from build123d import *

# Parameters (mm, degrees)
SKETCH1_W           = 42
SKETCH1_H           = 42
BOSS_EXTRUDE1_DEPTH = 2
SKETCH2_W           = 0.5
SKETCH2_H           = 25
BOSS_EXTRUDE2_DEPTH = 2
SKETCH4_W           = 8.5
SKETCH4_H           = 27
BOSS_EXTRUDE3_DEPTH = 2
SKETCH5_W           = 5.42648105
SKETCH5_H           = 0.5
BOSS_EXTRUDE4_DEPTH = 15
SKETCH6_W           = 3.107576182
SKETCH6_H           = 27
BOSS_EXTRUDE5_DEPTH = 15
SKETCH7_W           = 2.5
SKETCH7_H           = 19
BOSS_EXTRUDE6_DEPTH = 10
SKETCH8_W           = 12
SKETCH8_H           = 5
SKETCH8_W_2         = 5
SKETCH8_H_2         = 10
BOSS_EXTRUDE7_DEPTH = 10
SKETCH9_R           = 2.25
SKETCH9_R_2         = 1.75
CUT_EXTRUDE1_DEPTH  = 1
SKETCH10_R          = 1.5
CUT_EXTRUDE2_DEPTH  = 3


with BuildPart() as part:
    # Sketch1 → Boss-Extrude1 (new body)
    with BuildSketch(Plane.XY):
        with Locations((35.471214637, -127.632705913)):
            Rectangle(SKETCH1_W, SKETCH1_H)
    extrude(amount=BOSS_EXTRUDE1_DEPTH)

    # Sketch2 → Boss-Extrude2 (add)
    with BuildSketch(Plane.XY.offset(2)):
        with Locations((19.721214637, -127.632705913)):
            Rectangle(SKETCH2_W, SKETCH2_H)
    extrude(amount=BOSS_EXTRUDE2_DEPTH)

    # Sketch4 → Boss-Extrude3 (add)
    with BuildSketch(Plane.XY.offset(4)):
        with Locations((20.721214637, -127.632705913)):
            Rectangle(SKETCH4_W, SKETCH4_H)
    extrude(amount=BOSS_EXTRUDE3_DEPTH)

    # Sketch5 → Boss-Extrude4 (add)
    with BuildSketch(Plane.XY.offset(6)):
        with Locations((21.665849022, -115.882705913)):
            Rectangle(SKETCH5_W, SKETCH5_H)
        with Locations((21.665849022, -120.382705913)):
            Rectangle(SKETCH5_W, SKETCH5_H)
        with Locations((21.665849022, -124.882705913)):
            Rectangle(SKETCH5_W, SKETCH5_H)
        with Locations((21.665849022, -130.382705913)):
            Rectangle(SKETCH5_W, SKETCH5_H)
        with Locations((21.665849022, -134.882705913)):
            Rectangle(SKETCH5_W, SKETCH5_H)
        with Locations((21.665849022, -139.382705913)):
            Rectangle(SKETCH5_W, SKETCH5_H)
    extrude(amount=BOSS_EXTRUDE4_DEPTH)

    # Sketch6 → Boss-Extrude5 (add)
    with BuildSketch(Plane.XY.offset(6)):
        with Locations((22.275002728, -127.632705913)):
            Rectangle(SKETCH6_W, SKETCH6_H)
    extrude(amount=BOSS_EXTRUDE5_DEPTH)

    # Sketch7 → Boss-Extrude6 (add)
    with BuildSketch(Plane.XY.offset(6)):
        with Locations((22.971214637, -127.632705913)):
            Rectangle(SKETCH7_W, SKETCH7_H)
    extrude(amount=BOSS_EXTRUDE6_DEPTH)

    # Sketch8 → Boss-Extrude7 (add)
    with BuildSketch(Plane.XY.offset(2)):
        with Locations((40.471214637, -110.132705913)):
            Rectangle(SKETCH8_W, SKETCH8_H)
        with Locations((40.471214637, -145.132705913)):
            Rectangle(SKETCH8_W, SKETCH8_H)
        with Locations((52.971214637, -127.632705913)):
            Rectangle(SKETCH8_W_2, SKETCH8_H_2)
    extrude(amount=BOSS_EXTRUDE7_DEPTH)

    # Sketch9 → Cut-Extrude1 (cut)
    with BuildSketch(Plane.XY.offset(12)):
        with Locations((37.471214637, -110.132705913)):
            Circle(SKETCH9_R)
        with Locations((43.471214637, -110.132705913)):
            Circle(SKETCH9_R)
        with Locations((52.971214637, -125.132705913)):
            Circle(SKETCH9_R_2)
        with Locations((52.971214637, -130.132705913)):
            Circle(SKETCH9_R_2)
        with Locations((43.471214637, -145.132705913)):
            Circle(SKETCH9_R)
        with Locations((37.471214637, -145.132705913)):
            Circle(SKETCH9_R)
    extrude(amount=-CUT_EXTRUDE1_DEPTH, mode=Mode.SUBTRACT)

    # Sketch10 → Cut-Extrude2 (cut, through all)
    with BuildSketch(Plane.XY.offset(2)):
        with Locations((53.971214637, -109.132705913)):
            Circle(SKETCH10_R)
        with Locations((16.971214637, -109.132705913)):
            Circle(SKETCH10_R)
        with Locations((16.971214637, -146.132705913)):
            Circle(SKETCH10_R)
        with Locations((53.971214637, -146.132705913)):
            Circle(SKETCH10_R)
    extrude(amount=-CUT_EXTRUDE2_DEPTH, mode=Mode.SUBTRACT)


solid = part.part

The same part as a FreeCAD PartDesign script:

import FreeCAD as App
import Part
import Sketcher

V = App.Vector

doc = App.newDocument("Part")
body = doc.addObject("PartDesign::Body", "Body")

# Sketch on XY plane
sketch1 = doc.addObject("Sketcher::SketchObject", "Sketch")
body.addObject(sketch1)
sketch1.AttachmentSupport = (doc.XY_Plane, [""])
sketch1.MapMode = "FlatFace"
sketch1.addGeometry(Part.LineSegment(V(14, -107, 0), V(14, -149, 0)), False)
sketch1.addGeometry(Part.LineSegment(V(14, -149, 0), V(56, -149, 0)), False)
sketch1.addGeometry(Part.LineSegment(V(56, -149, 0), V(56, -107, 0)), False)
sketch1.addGeometry(Part.LineSegment(V(56, -107, 0), V(14, -107, 0)), False)
sketch1.addConstraint(Sketcher.Constraint("Coincident", 0, 2, 1, 1))
sketch1.addConstraint(Sketcher.Constraint("Coincident", 1, 2, 2, 1))
sketch1.addConstraint(Sketcher.Constraint("Coincident", 2, 2, 3, 1))
sketch1.addConstraint(Sketcher.Constraint("Coincident", 3, 2, 0, 1))
sketch1.addConstraint(Sketcher.Constraint("Vertical", 0))
sketch1.addConstraint(Sketcher.Constraint("Horizontal", 1))
sketch1.addConstraint(Sketcher.Constraint("Vertical", 2))
sketch1.addConstraint(Sketcher.Constraint("Horizontal", 3))
sketch1.addConstraint(Sketcher.Constraint("Equal", 3, 0))
sketch1.addConstraint(Sketcher.Constraint("DistanceX", 1, 1, 1, 2, 42.0))
sketch1.addConstraint(Sketcher.Constraint("DistanceX", -1, 1, 0, 2, 14.471215))
sketch1.addConstraint(Sketcher.Constraint("DistanceY", 0, 2, -1, 1, 148.632706))
pad1 = doc.addObject("PartDesign::Pad", "Pad")
body.addObject(pad1)
pad1.Profile = sketch1
pad1.Length = 2

# Sketch on XY plane
sketch2 = doc.addObject("Sketcher::SketchObject", "Sketch001")
body.addObject(sketch2)
sketch2.AttachmentSupport = (doc.XY_Plane, [""])
sketch2.MapMode = "FlatFace"
sketch2.AttachmentOffset = App.Placement(V(0, 0, 2), App.Rotation())
sketch2.addGeometry(Part.LineSegment(V(19.5, -115.1, 0), V(19.5, -140.1, 0)), False)
sketch2.addGeometry(Part.LineSegment(V(19.5, -140.1, 0), V(20, -140.1, 0)), False)
sketch2.addGeometry(Part.LineSegment(V(20, -140.1, 0), V(20, -115.1, 0)), False)
sketch2.addGeometry(Part.LineSegment(V(20, -115.1, 0), V(19.5, -115.1, 0)), False)
sketch2.addConstraint(Sketcher.Constraint("Coincident", 0, 2, 1, 1))
sketch2.addConstraint(Sketcher.Constraint("Coincident", 1, 2, 2, 1))
sketch2.addConstraint(Sketcher.Constraint("Coincident", 2, 2, 3, 1))
sketch2.addConstraint(Sketcher.Constraint("Coincident", 3, 2, 0, 1))
sketch2.addConstraint(Sketcher.Constraint("Vertical", 0))
sketch2.addConstraint(Sketcher.Constraint("Horizontal", 1))
sketch2.addConstraint(Sketcher.Constraint("Vertical", 2))
sketch2.addConstraint(Sketcher.Constraint("Horizontal", 3))
sketch2.addConstraint(Sketcher.Constraint("DistanceY", 0, 2, 0, 1, 25.0))
sketch2.addConstraint(Sketcher.Constraint("DistanceX", 1, 1, 1, 2, 0.5))
sketch2.addConstraint(Sketcher.Constraint("DistanceX", -1, 1, 0, 2, 19.471215))
sketch2.addConstraint(Sketcher.Constraint("DistanceY", 0, 2, -1, 1, 140.132706))
pad2 = doc.addObject("PartDesign::Pad", "Pad001")
body.addObject(pad2)
pad2.Profile = sketch2
pad2.Length = 2

# Sketch on XY plane
sketch3 = doc.addObject("Sketcher::SketchObject", "Sketch002")
body.addObject(sketch3)
sketch3.AttachmentSupport = (doc.XY_Plane, [""])
sketch3.MapMode = "FlatFace"
sketch3.AttachmentOffset = App.Placement(V(0, 0, 4), App.Rotation())
sketch3.addGeometry(Part.LineSegment(V(16, -114, 0), V(16, -141, 0)), False)
sketch3.addGeometry(Part.LineSegment(V(16, -141, 0), V(25, -141, 0)), False)
sketch3.addGeometry(Part.LineSegment(V(25, -141, 0), V(25, -114, 0)), False)
sketch3.addGeometry(Part.LineSegment(V(25, -114, 0), V(16, -114, 0)), False)
sketch3.addConstraint(Sketcher.Constraint("Coincident", 0, 2, 1, 1))
sketch3.addConstraint(Sketcher.Constraint("Coincident", 1, 2, 2, 1))
sketch3.addConstraint(Sketcher.Constraint("Coincident", 2, 2, 3, 1))
sketch3.addConstraint(Sketcher.Constraint("Coincident", 3, 2, 0, 1))
sketch3.addConstraint(Sketcher.Constraint("Vertical", 0))
sketch3.addConstraint(Sketcher.Constraint("Horizontal", 1))
sketch3.addConstraint(Sketcher.Constraint("Vertical", 2))
sketch3.addConstraint(Sketcher.Constraint("Horizontal", 3))
sketch3.addConstraint(Sketcher.Constraint("DistanceY", 0, 2, 0, 1, 27.0))
sketch3.addConstraint(Sketcher.Constraint("DistanceX", 1, 1, 1, 2, 8.5))
sketch3.addConstraint(Sketcher.Constraint("DistanceX", -1, 1, 0, 2, 16.471215))
sketch3.addConstraint(Sketcher.Constraint("DistanceY", 0, 2, -1, 1, 141.132706))
pad3 = doc.addObject("PartDesign::Pad", "Pad002")
body.addObject(pad3)
pad3.Profile = sketch3
pad3.Length = 2

# Sketch on XY plane
sketch4 = doc.addObject("Sketcher::SketchObject", "Sketch003")
body.addObject(sketch4)
sketch4.AttachmentSupport = (doc.XY_Plane, [""])
sketch4.MapMode = "FlatFace"
sketch4.AttachmentOffset = App.Placement(V(0, 0, 6), App.Rotation())
sketch4.addGeometry(Part.LineSegment(V(19, -115.6, 0), V(19, -116.1, 0)), False)
sketch4.addGeometry(Part.LineSegment(V(19, -116.1, 0), V(24.4, -116.1, 0)), False)
sketch4.addGeometry(Part.LineSegment(V(24.4, -116.1, 0), V(24.4, -115.6, 0)), False)
sketch4.addGeometry(Part.LineSegment(V(24.4, -115.6, 0), V(19, -115.6, 0)), False)
sketch4.addGeometry(Part.LineSegment(V(19, -120.1, 0), V(19, -120.6, 0)), False)
sketch4.addGeometry(Part.LineSegment(V(19, -120.6, 0), V(24.4, -120.6, 0)), False)
sketch4.addGeometry(Part.LineSegment(V(24.4, -120.6, 0), V(24.4, -120.1, 0)), False)
sketch4.addGeometry(Part.LineSegment(V(24.4, -120.1, 0), V(19, -120.1, 0)), False)
sketch4.addGeometry(Part.LineSegment(V(19, -124.6, 0), V(19, -125.1, 0)), False)
sketch4.addGeometry(Part.LineSegment(V(19, -125.1, 0), V(24.4, -125.1, 0)), False)
sketch4.addGeometry(Part.LineSegment(V(24.4, -125.1, 0), V(24.4, -124.6, 0)), False)
sketch4.addGeometry(Part.LineSegment(V(24.4, -124.6, 0), V(19, -124.6, 0)), False)
sketch4.addGeometry(Part.LineSegment(V(19, -130.1, 0), V(19, -130.6, 0)), False)
sketch4.addGeometry(Part.LineSegment(V(19, -130.6, 0), V(24.4, -130.6, 0)), False)
sketch4.addGeometry(Part.LineSegment(V(24.4, -130.6, 0), V(24.4, -130.1, 0)), False)
sketch4.addGeometry(Part.LineSegment(V(24.4, -130.1, 0), V(19, -130.1, 0)), False)
sketch4.addGeometry(Part.LineSegment(V(19, -134.6, 0), V(19, -135.1, 0)), False)
sketch4.addGeometry(Part.LineSegment(V(19, -135.1, 0), V(24.4, -135.1, 0)), False)
sketch4.addGeometry(Part.LineSegment(V(24.4, -135.1, 0), V(24.4, -134.6, 0)), False)
sketch4.addGeometry(Part.LineSegment(V(24.4, -134.6, 0), V(19, -134.6, 0)), False)
sketch4.addGeometry(Part.LineSegment(V(19, -139.1, 0), V(19, -139.6, 0)), False)
sketch4.addGeometry(Part.LineSegment(V(19, -139.6, 0), V(24.4, -139.6, 0)), False)
sketch4.addGeometry(Part.LineSegment(V(24.4, -139.6, 0), V(24.4, -139.1, 0)), False)
sketch4.addGeometry(Part.LineSegment(V(24.4, -139.1, 0), V(19, -139.1, 0)), False)
sketch4.addConstraint(Sketcher.Constraint("Coincident", 0, 2, 1, 1))
sketch4.addConstraint(Sketcher.Constraint("Coincident", 1, 2, 2, 1))
sketch4.addConstraint(Sketcher.Constraint("Coincident", 2, 2, 3, 1))
sketch4.addConstraint(Sketcher.Constraint("Coincident", 3, 2, 0, 1))
sketch4.addConstraint(Sketcher.Constraint("Coincident", 4, 2, 5, 1))
sketch4.addConstraint(Sketcher.Constraint("Coincident", 5, 2, 6, 1))
sketch4.addConstraint(Sketcher.Constraint("Coincident", 6, 2, 7, 1))
sketch4.addConstraint(Sketcher.Constraint("Coincident", 7, 2, 4, 1))
sketch4.addConstraint(Sketcher.Constraint("Coincident", 8, 2, 9, 1))
sketch4.addConstraint(Sketcher.Constraint("Coincident", 9, 2, 10, 1))
sketch4.addConstraint(Sketcher.Constraint("Coincident", 10, 2, 11, 1))
sketch4.addConstraint(Sketcher.Constraint("Coincident", 11, 2, 8, 1))
sketch4.addConstraint(Sketcher.Constraint("Coincident", 12, 2, 13, 1))
sketch4.addConstraint(Sketcher.Constraint("Coincident", 13, 2, 14, 1))
sketch4.addConstraint(Sketcher.Constraint("Coincident", 14, 2, 15, 1))
sketch4.addConstraint(Sketcher.Constraint("Coincident", 15, 2, 12, 1))
sketch4.addConstraint(Sketcher.Constraint("Coincident", 16, 2, 17, 1))
sketch4.addConstraint(Sketcher.Constraint("Coincident", 17, 2, 18, 1))
sketch4.addConstraint(Sketcher.Constraint("Coincident", 18, 2, 19, 1))
sketch4.addConstraint(Sketcher.Constraint("Coincident", 19, 2, 16, 1))
sketch4.addConstraint(Sketcher.Constraint("Coincident", 20, 2, 21, 1))
sketch4.addConstraint(Sketcher.Constraint("Coincident", 21, 2, 22, 1))
sketch4.addConstraint(Sketcher.Constraint("Coincident", 22, 2, 23, 1))
sketch4.addConstraint(Sketcher.Constraint("Coincident", 23, 2, 20, 1))
sketch4.addConstraint(Sketcher.Constraint("Vertical", 0))
sketch4.addConstraint(Sketcher.Constraint("Horizontal", 1))
sketch4.addConstraint(Sketcher.Constraint("Vertical", 2))
sketch4.addConstraint(Sketcher.Constraint("Horizontal", 3))
sketch4.addConstraint(Sketcher.Constraint("Vertical", 4))
sketch4.addConstraint(Sketcher.Constraint("Horizontal", 5))
sketch4.addConstraint(Sketcher.Constraint("Vertical", 6))
sketch4.addConstraint(Sketcher.Constraint("Horizontal", 7))
sketch4.addConstraint(Sketcher.Constraint("Vertical", 8))
sketch4.addConstraint(Sketcher.Constraint("Horizontal", 9))
sketch4.addConstraint(Sketcher.Constraint("Vertical", 10))
sketch4.addConstraint(Sketcher.Constraint("Horizontal", 11))
sketch4.addConstraint(Sketcher.Constraint("Vertical", 12))
sketch4.addConstraint(Sketcher.Constraint("Horizontal", 13))
sketch4.addConstraint(Sketcher.Constraint("Vertical", 14))
sketch4.addConstraint(Sketcher.Constraint("Horizontal", 15))
sketch4.addConstraint(Sketcher.Constraint("Vertical", 16))
sketch4.addConstraint(Sketcher.Constraint("Horizontal", 17))
sketch4.addConstraint(Sketcher.Constraint("Vertical", 18))
sketch4.addConstraint(Sketcher.Constraint("Horizontal", 19))
sketch4.addConstraint(Sketcher.Constraint("Vertical", 20))
sketch4.addConstraint(Sketcher.Constraint("Horizontal", 21))
sketch4.addConstraint(Sketcher.Constraint("Vertical", 22))
sketch4.addConstraint(Sketcher.Constraint("Horizontal", 23))
sketch4.addConstraint(Sketcher.Constraint("Vertical", 3, 2, 4, 2))
sketch4.addConstraint(Sketcher.Constraint("Vertical", 2, 2, 5, 2))
sketch4.addConstraint(Sketcher.Constraint("Vertical", 7, 2, 8, 2))
sketch4.addConstraint(Sketcher.Constraint("Vertical", 6, 2, 9, 2))
sketch4.addConstraint(Sketcher.Constraint("Vertical", 11, 2, 12, 2))
sketch4.addConstraint(Sketcher.Constraint("Vertical", 10, 2, 13, 2))
sketch4.addConstraint(Sketcher.Constraint("Vertical", 15, 2, 16, 2))
sketch4.addConstraint(Sketcher.Constraint("Vertical", 14, 2, 17, 2))
sketch4.addConstraint(Sketcher.Constraint("Vertical", 19, 2, 20, 2))
sketch4.addConstraint(Sketcher.Constraint("Vertical", 18, 2, 21, 2))
sketch4.addConstraint(Sketcher.Constraint("Equal", 2, 4))
sketch4.addConstraint(Sketcher.Constraint("Equal", 6, 8))
sketch4.addConstraint(Sketcher.Constraint("Equal", 10, 12))
sketch4.addConstraint(Sketcher.Constraint("Equal", 14, 16))
sketch4.addConstraint(Sketcher.Constraint("Equal", 18, 20))
sketch4.addConstraint(Sketcher.Constraint("DistanceY", 0, 2, 0, 1, 0.5))
sketch4.addConstraint(Sketcher.Constraint("DistanceY", 4, 2, 3, 2, 5.0))
sketch4.addConstraint(Sketcher.Constraint("DistanceY", 8, 2, 7, 2, 5.0))
sketch4.addConstraint(Sketcher.Constraint("DistanceY", 12, 2, 11, 2, 6.0))
sketch4.addConstraint(Sketcher.Constraint("DistanceY", 16, 2, 15, 2, 5.0))
sketch4.addConstraint(Sketcher.Constraint("DistanceY", 20, 2, 19, 2, 5.0))
sketch4.addConstraint(Sketcher.Constraint("DistanceX", 1, 1, 1, 2, 5.426481))
sketch4.addConstraint(Sketcher.Constraint("DistanceX", -1, 1, 0, 2, 18.952608))
sketch4.addConstraint(Sketcher.Constraint("DistanceY", 0, 2, -1, 1, 116.132706))
pad4 = doc.addObject("PartDesign::Pad", "Pad003")
body.addObject(pad4)
pad4.Profile = sketch4
pad4.Length = 15

# Sketch on XY plane
sketch5 = doc.addObject("Sketcher::SketchObject", "Sketch004")
body.addObject(sketch5)
sketch5.AttachmentSupport = (doc.XY_Plane, [""])
sketch5.MapMode = "FlatFace"
sketch5.AttachmentOffset = App.Placement(V(0, 0, 6), App.Rotation())
sketch5.addGeometry(Part.LineSegment(V(20.7, -114.1, 0), V(20.7, -141.1, 0)), False)
sketch5.addGeometry(Part.LineSegment(V(20.7, -141.1, 0), V(23.8, -141.1, 0)), False)
sketch5.addGeometry(Part.LineSegment(V(23.8, -141.1, 0), V(23.8, -114.1, 0)), False)
sketch5.addGeometry(Part.LineSegment(V(23.8, -114.1, 0), V(20.7, -114.1, 0)), False)
sketch5.addConstraint(Sketcher.Constraint("Coincident", 0, 2, 1, 1))
sketch5.addConstraint(Sketcher.Constraint("Coincident", 1, 2, 2, 1))
sketch5.addConstraint(Sketcher.Constraint("Coincident", 2, 2, 3, 1))
sketch5.addConstraint(Sketcher.Constraint("Coincident", 3, 2, 0, 1))
sketch5.addConstraint(Sketcher.Constraint("Vertical", 0))
sketch5.addConstraint(Sketcher.Constraint("Horizontal", 1))
sketch5.addConstraint(Sketcher.Constraint("Vertical", 2))
sketch5.addConstraint(Sketcher.Constraint("Horizontal", 3))
sketch5.addConstraint(Sketcher.Constraint("DistanceY", 0, 2, 0, 1, 27.0))
sketch5.addConstraint(Sketcher.Constraint("DistanceX", 1, 1, 1, 2, 3.107576))
sketch5.addConstraint(Sketcher.Constraint("DistanceX", -1, 1, 1, 2, 23.828791))
sketch5.addConstraint(Sketcher.Constraint("DistanceY", 0, 2, -1, 1, 141.132706))
pad5 = doc.addObject("PartDesign::Pad", "Pad004")
body.addObject(pad5)
pad5.Profile = sketch5
pad5.Length = 15

# Sketch on XY plane
sketch6 = doc.addObject("Sketcher::SketchObject", "Sketch005")
body.addObject(sketch6)
sketch6.AttachmentSupport = (doc.XY_Plane, [""])
sketch6.MapMode = "FlatFace"
sketch6.AttachmentOffset = App.Placement(V(0, 0, 6), App.Rotation())
sketch6.addGeometry(Part.LineSegment(V(21.7, -118.1, 0), V(21.7, -137.1, 0)), False)
sketch6.addGeometry(Part.LineSegment(V(21.7, -137.1, 0), V(24.2, -137.1, 0)), False)
sketch6.addGeometry(Part.LineSegment(V(24.2, -137.1, 0), V(24.2, -118.1, 0)), False)
sketch6.addGeometry(Part.LineSegment(V(24.2, -118.1, 0), V(21.7, -118.1, 0)), False)
sketch6.addConstraint(Sketcher.Constraint("Coincident", 0, 2, 1, 1))
sketch6.addConstraint(Sketcher.Constraint("Coincident", 1, 2, 2, 1))
sketch6.addConstraint(Sketcher.Constraint("Coincident", 2, 2, 3, 1))
sketch6.addConstraint(Sketcher.Constraint("Coincident", 3, 2, 0, 1))
sketch6.addConstraint(Sketcher.Constraint("Vertical", 0))
sketch6.addConstraint(Sketcher.Constraint("Horizontal", 1))
sketch6.addConstraint(Sketcher.Constraint("Vertical", 2))
sketch6.addConstraint(Sketcher.Constraint("Horizontal", 3))
sketch6.addConstraint(Sketcher.Constraint("DistanceY", 0, 2, 0, 1, 19.0))
sketch6.addConstraint(Sketcher.Constraint("DistanceX", 1, 1, 1, 2, 2.5))
sketch6.addConstraint(Sketcher.Constraint("DistanceX", -1, 1, 0, 2, 21.721215))
sketch6.addConstraint(Sketcher.Constraint("DistanceY", 0, 2, -1, 1, 137.132706))
pad6 = doc.addObject("PartDesign::Pad", "Pad005")
body.addObject(pad6)
pad6.Profile = sketch6
pad6.Length = 10

# Sketch on XY plane
sketch7 = doc.addObject("Sketcher::SketchObject", "Sketch006")
body.addObject(sketch7)
sketch7.AttachmentSupport = (doc.XY_Plane, [""])
sketch7.MapMode = "FlatFace"
sketch7.AttachmentOffset = App.Placement(V(0, 0, 2), App.Rotation())
sketch7.addGeometry(Part.LineSegment(V(34, -108, 0), V(34, -113, 0)), False)
sketch7.addGeometry(Part.LineSegment(V(34, -113, 0), V(46, -113, 0)), False)
sketch7.addGeometry(Part.LineSegment(V(46, -113, 0), V(46, -108, 0)), False)
sketch7.addGeometry(Part.LineSegment(V(46, -108, 0), V(34, -108, 0)), False)
sketch7.addGeometry(Part.LineSegment(V(34, -143, 0), V(34, -148, 0)), False)
sketch7.addGeometry(Part.LineSegment(V(34, -148, 0), V(46, -148, 0)), False)
sketch7.addGeometry(Part.LineSegment(V(46, -148, 0), V(46, -143, 0)), False)
sketch7.addGeometry(Part.LineSegment(V(46, -143, 0), V(34, -143, 0)), False)
sketch7.addGeometry(Part.LineSegment(V(50, -123, 0), V(50, -133, 0)), False)
sketch7.addGeometry(Part.LineSegment(V(50, -133, 0), V(55, -133, 0)), False)
sketch7.addGeometry(Part.LineSegment(V(55, -133, 0), V(55, -123, 0)), False)
sketch7.addGeometry(Part.LineSegment(V(55, -123, 0), V(50, -123, 0)), False)
sketch7.addConstraint(Sketcher.Constraint("Coincident", 0, 2, 1, 1))
sketch7.addConstraint(Sketcher.Constraint("Coincident", 1, 2, 2, 1))
sketch7.addConstraint(Sketcher.Constraint("Coincident", 2, 2, 3, 1))
sketch7.addConstraint(Sketcher.Constraint("Coincident", 3, 2, 0, 1))
sketch7.addConstraint(Sketcher.Constraint("Coincident", 4, 2, 5, 1))
sketch7.addConstraint(Sketcher.Constraint("Coincident", 5, 2, 6, 1))
sketch7.addConstraint(Sketcher.Constraint("Coincident", 6, 2, 7, 1))
sketch7.addConstraint(Sketcher.Constraint("Coincident", 7, 2, 4, 1))
sketch7.addConstraint(Sketcher.Constraint("Coincident", 8, 2, 9, 1))
sketch7.addConstraint(Sketcher.Constraint("Coincident", 9, 2, 10, 1))
sketch7.addConstraint(Sketcher.Constraint("Coincident", 10, 2, 11, 1))
sketch7.addConstraint(Sketcher.Constraint("Coincident", 11, 2, 8, 1))
sketch7.addConstraint(Sketcher.Constraint("Vertical", 0))
sketch7.addConstraint(Sketcher.Constraint("Horizontal", 1))
sketch7.addConstraint(Sketcher.Constraint("Vertical", 2))
sketch7.addConstraint(Sketcher.Constraint("Horizontal", 3))
sketch7.addConstraint(Sketcher.Constraint("Vertical", 4))
sketch7.addConstraint(Sketcher.Constraint("Horizontal", 5))
sketch7.addConstraint(Sketcher.Constraint("Vertical", 6))
sketch7.addConstraint(Sketcher.Constraint("Horizontal", 7))
sketch7.addConstraint(Sketcher.Constraint("Vertical", 8))
sketch7.addConstraint(Sketcher.Constraint("Horizontal", 9))
sketch7.addConstraint(Sketcher.Constraint("Vertical", 10))
sketch7.addConstraint(Sketcher.Constraint("Horizontal", 11))
sketch7.addConstraint(Sketcher.Constraint("Vertical", 3, 2, 4, 2))
sketch7.addConstraint(Sketcher.Constraint("Vertical", 2, 2, 5, 2))
sketch7.addConstraint(Sketcher.Constraint("Equal", 11, 0))
sketch7.addConstraint(Sketcher.Constraint("Equal", 2, 4))
sketch7.addConstraint(Sketcher.Constraint("DistanceX", 1, 1, 1, 2, 12.0))
sketch7.addConstraint(Sketcher.Constraint("DistanceX", 9, 1, 9, 2, 5.0))
sketch7.addConstraint(Sketcher.Constraint("DistanceY", 8, 2, 8, 1, 10.0))
sketch7.addConstraint(Sketcher.Constraint("DistanceY", 4, 2, 0, 2, 35.0))
sketch7.addConstraint(Sketcher.Constraint("DistanceX", 6, 2, 8, 2, 4.0))
sketch7.addConstraint(Sketcher.Constraint("DistanceY", 6, 2, 8, 2, 10.0))
sketch7.addConstraint(Sketcher.Constraint("DistanceX", -1, 1, 0, 2, 34.471215))
sketch7.addConstraint(Sketcher.Constraint("DistanceY", 0, 2, -1, 1, 112.632706))
pad7 = doc.addObject("PartDesign::Pad", "Pad006")
body.addObject(pad7)
pad7.Profile = sketch7
pad7.Length = 10

# Sketch on XY plane
sketch8 = doc.addObject("Sketcher::SketchObject", "Sketch007")
body.addObject(sketch8)
sketch8.AttachmentSupport = (doc.XY_Plane, [""])
sketch8.MapMode = "FlatFace"
sketch8.AttachmentOffset = App.Placement(V(0, 0, 12), App.Rotation())
sketch8.addGeometry(Part.Circle(V(37.5, -110.1, 0), V(0, 0, 1), 2.2), False)
sketch8.addGeometry(Part.Circle(V(43.5, -110.1, 0), V(0, 0, 1), 2.2), False)
sketch8.addGeometry(Part.Circle(V(53, -125.1, 0), V(0, 0, 1), 1.8), False)
sketch8.addGeometry(Part.Circle(V(53, -130.1, 0), V(0, 0, 1), 1.8), False)
sketch8.addGeometry(Part.Circle(V(43.5, -145.1, 0), V(0, 0, 1), 2.2), False)
sketch8.addGeometry(Part.Circle(V(37.5, -145.1, 0), V(0, 0, 1), 2.2), False)
sketch8.addConstraint(Sketcher.Constraint("Equal", 0, 1))
sketch8.addConstraint(Sketcher.Constraint("Equal", 2, 3))
sketch8.addConstraint(Sketcher.Constraint("Equal", 1, 4))
sketch8.addConstraint(Sketcher.Constraint("Equal", 4, 5))
sketch8.addConstraint(Sketcher.Constraint("Horizontal", 0, 3, 1, 3))
sketch8.addConstraint(Sketcher.Constraint("Horizontal", 4, 3, 5, 3))
sketch8.addConstraint(Sketcher.Constraint("Vertical", 2, 3, 3, 3))
sketch8.addConstraint(Sketcher.Constraint("Vertical", 1, 3, 4, 3))
sketch8.addConstraint(Sketcher.Constraint("Vertical", 0, 3, 5, 3))
sketch8.addConstraint(Sketcher.Constraint("Diameter", 0, 4.5))
sketch8.addConstraint(Sketcher.Constraint("Diameter", 2, 3.5))
sketch8.addConstraint(Sketcher.Constraint("DistanceX", 0, 3, 1, 3, 6.0))
sketch8.addConstraint(Sketcher.Constraint("DistanceY", 2, 3, 1, 3, 15.0))
sketch8.addConstraint(Sketcher.Constraint("DistanceY", 3, 3, 2, 3, 5.0))
sketch8.addConstraint(Sketcher.Constraint("DistanceY", 4, 3, 3, 3, 15.0))
sketch8.addConstraint(Sketcher.Constraint("DistanceX", 1, 3, 2, 3, 9.5))
sketch8.addConstraint(Sketcher.Constraint("DistanceX", -1, 1, 0, 3, 37.471215))
sketch8.addConstraint(Sketcher.Constraint("DistanceY", 0, 3, -1, 1, 110.132706))
pocket1 = doc.addObject("PartDesign::Pocket", "Pocket")
body.addObject(pocket1)
pocket1.Profile = sketch8
pocket1.Length = 1

# Sketch on XY plane
sketch9 = doc.addObject("Sketcher::SketchObject", "Sketch008")
body.addObject(sketch9)
sketch9.AttachmentSupport = (doc.XY_Plane, [""])
sketch9.MapMode = "FlatFace"
sketch9.AttachmentOffset = App.Placement(V(0, 0, 2), App.Rotation())
sketch9.addGeometry(Part.Circle(V(54, -109.1, 0), V(0, 0, 1), 1.5), False)
sketch9.addGeometry(Part.Circle(V(17, -109.1, 0), V(0, 0, 1), 1.5), False)
sketch9.addGeometry(Part.Circle(V(17, -146.1, 0), V(0, 0, 1), 1.5), False)
sketch9.addGeometry(Part.Circle(V(54, -146.1, 0), V(0, 0, 1), 1.5), False)
sketch9.addConstraint(Sketcher.Constraint("Equal", 0, 1))
sketch9.addConstraint(Sketcher.Constraint("Equal", 1, 2))
sketch9.addConstraint(Sketcher.Constraint("Equal", 2, 3))
sketch9.addConstraint(Sketcher.Constraint("Horizontal", 0, 3, 1, 3))
sketch9.addConstraint(Sketcher.Constraint("Horizontal", 2, 3, 3, 3))
sketch9.addConstraint(Sketcher.Constraint("Vertical", 1, 3, 2, 3))
sketch9.addConstraint(Sketcher.Constraint("Vertical", 0, 3, 3, 3))
sketch9.addConstraint(Sketcher.Constraint("Diameter", 0, 3.0))
sketch9.addConstraint(Sketcher.Constraint("DistanceX", 1, 3, 0, 3, 37.0))
sketch9.addConstraint(Sketcher.Constraint("DistanceY", 2, 3, 1, 3, 37.0))
sketch9.addConstraint(Sketcher.Constraint("DistanceX", -1, 1, 0, 3, 53.971215))
sketch9.addConstraint(Sketcher.Constraint("DistanceY", 0, 3, -1, 1, 109.132706))
pocket2 = doc.addObject("PartDesign::Pocket", "Pocket001")
body.addObject(pocket2)
pocket2.Profile = sketch9
pocket2.Type = "ThroughAll"

doc.recompute()
